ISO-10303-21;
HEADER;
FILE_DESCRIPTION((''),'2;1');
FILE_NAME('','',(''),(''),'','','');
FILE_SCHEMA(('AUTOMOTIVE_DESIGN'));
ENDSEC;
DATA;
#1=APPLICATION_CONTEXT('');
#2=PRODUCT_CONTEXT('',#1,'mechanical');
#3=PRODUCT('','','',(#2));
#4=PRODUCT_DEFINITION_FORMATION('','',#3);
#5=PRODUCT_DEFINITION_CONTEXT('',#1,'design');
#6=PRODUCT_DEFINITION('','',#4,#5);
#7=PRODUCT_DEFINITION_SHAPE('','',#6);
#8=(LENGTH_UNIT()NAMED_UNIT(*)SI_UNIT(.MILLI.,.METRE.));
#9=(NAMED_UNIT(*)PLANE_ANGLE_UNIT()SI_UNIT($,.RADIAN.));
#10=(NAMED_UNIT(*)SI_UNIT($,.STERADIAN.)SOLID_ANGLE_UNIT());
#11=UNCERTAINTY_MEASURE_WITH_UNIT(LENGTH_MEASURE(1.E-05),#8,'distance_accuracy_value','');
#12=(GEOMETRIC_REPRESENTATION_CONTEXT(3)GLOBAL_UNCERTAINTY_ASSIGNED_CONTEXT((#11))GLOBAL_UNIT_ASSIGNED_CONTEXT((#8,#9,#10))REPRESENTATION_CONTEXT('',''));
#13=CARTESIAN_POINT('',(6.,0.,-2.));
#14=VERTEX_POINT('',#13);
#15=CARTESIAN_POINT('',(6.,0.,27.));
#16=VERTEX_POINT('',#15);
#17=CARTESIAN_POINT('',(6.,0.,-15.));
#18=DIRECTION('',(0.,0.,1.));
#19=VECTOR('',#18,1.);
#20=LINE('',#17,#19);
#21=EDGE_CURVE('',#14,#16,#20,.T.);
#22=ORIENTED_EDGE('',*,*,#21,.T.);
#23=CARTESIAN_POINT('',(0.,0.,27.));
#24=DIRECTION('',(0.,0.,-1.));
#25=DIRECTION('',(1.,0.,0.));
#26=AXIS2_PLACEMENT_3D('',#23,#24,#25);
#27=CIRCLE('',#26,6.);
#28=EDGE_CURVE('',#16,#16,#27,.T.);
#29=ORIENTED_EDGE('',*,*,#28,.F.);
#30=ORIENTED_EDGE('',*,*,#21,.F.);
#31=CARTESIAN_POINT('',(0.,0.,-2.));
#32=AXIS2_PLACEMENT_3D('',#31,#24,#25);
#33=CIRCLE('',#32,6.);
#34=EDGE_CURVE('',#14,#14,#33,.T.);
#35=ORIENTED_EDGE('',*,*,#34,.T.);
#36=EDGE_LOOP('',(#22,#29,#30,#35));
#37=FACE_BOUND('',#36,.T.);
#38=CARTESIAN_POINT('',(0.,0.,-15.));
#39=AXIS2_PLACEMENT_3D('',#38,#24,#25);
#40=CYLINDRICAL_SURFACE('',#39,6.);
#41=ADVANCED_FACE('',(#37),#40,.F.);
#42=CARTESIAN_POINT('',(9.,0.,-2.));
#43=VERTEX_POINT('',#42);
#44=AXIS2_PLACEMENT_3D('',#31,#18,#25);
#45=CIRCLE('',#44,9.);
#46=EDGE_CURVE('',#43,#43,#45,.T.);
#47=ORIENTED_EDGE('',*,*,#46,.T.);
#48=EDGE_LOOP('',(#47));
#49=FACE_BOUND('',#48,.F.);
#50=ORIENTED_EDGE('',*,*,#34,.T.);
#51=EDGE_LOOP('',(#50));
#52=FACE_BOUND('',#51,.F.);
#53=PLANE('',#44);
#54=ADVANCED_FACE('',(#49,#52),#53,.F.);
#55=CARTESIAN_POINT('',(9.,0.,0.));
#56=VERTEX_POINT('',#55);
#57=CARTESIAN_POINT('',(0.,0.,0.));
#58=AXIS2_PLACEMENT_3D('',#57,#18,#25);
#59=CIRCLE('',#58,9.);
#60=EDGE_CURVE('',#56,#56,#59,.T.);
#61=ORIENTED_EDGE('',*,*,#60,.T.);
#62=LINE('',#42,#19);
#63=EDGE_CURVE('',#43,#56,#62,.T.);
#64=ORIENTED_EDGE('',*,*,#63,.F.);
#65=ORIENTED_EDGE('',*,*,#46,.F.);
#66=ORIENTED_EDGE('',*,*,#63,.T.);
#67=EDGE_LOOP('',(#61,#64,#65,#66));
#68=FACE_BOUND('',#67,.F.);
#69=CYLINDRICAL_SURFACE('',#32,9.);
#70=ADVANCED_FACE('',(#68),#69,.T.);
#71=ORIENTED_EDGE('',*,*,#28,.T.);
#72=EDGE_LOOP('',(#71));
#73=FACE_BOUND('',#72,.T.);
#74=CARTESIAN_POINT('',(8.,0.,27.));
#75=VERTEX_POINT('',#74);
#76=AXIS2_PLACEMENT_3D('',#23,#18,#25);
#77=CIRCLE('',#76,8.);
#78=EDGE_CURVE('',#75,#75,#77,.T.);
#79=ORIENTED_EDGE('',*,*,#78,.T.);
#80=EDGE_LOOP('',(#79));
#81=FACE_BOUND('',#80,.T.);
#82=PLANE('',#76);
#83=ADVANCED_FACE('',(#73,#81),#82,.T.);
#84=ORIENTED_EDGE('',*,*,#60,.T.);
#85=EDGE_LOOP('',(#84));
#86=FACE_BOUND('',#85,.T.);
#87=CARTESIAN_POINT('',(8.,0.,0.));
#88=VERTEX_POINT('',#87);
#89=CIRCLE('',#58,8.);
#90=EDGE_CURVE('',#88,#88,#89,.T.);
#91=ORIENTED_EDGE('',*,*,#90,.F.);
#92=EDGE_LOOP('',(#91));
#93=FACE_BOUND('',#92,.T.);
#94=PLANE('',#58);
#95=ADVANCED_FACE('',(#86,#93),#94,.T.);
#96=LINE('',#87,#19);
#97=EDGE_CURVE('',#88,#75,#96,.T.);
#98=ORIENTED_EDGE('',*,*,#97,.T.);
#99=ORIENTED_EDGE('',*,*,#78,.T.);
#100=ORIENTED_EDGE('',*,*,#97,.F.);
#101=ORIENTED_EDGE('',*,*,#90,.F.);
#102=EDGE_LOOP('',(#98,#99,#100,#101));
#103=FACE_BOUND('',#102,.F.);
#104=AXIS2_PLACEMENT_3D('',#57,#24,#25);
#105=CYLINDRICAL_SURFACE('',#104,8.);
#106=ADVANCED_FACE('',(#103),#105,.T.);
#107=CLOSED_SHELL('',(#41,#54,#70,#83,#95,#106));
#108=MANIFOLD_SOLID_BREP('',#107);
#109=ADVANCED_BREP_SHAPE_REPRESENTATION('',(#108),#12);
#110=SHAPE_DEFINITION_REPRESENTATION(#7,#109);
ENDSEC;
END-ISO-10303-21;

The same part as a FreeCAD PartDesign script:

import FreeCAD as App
import Part
import Sketcher

V = App.Vector

doc = App.newDocument("Part")
body = doc.addObject("PartDesign::Body", "Body")

# Sketch on XY plane
sketch1 = body.newObject("Sketcher::SketchObject", "Sketch")
sketch1.AttachmentSupport = (doc.getObject("XY_Plane"), [""])
sketch1.MapMode = "FlatFace"
sketch1.AttachmentOffset = App.Placement(V(0, 0, -15), App.Rotation())
sketch1.addGeometry(Part.Circle(V(0, 0, 0), V(0, 0, 1), 6), False)
sketch1.addConstraint(Sketcher.Constraint("Coincident", 0, 3, -1, 1))
sketch1.addConstraint(Sketcher.Constraint("Diameter", 0, 12.0))
pad1 = body.newObject("PartDesign::Pad", "Pad")
pad1.Profile = sketch1
pad1.Length = 50
body2 = doc.addObject("PartDesign::Body", "Body001")

# Sketch on XY plane
sketch2 = body2.newObject("Sketcher::SketchObject", "Sketch001")
sketch2.AttachmentSupport = (doc.getObject("XY_Plane001"), [""])
sketch2.MapMode = "FlatFace"
sketch2.AttachmentOffset = App.Placement(V(0, 0, -2), App.Rotation())
sketch2.addGeometry(Part.Circle(V(0, 0, 0), V(0, 0, 1), 9), False)
sketch2.addConstraint(Sketcher.Constraint("Coincident", 0, 3, -1, 1))
sketch2.addConstraint(Sketcher.Constraint("Diameter", 0, 18.0))
pad2 = body2.newObject("PartDesign::Pad", "Pad001")
pad2.Profile = sketch2
pad2.Length = 2
body3 = doc.addObject("PartDesign::Body", "Body002")

# Sketch on XY plane
sketch3 = body3.newObject("Sketcher::SketchObject", "Sketch002")
sketch3.AttachmentSupport = (doc.getObject("XY_Plane002"), [""])
sketch3.MapMode = "FlatFace"
sketch3.addGeometry(Part.Circle(V(0, 0, 0), V(0, 0, 1), 8), False)
sketch3.addConstraint(Sketcher.Constraint("Coincident", 0, 3, -1, 1))
sketch3.addConstraint(Sketcher.Constraint("Diameter", 0, 16.0))
pad3 = body3.newObject("PartDesign::Pad", "Pad002")
pad3.Profile = sketch3
pad3.Length = 27
doc.recompute()

boolean = body3.newObject("PartDesign::Boolean", "Boolean")
boolean.Type = "Fuse"
boolean.addObjects([body2])
doc.recompute()

boolean2 = body3.newObject("PartDesign::Boolean", "Boolean001")
boolean2.Type = "Cut"
boolean2.addObjects([body])

doc.recompute()
